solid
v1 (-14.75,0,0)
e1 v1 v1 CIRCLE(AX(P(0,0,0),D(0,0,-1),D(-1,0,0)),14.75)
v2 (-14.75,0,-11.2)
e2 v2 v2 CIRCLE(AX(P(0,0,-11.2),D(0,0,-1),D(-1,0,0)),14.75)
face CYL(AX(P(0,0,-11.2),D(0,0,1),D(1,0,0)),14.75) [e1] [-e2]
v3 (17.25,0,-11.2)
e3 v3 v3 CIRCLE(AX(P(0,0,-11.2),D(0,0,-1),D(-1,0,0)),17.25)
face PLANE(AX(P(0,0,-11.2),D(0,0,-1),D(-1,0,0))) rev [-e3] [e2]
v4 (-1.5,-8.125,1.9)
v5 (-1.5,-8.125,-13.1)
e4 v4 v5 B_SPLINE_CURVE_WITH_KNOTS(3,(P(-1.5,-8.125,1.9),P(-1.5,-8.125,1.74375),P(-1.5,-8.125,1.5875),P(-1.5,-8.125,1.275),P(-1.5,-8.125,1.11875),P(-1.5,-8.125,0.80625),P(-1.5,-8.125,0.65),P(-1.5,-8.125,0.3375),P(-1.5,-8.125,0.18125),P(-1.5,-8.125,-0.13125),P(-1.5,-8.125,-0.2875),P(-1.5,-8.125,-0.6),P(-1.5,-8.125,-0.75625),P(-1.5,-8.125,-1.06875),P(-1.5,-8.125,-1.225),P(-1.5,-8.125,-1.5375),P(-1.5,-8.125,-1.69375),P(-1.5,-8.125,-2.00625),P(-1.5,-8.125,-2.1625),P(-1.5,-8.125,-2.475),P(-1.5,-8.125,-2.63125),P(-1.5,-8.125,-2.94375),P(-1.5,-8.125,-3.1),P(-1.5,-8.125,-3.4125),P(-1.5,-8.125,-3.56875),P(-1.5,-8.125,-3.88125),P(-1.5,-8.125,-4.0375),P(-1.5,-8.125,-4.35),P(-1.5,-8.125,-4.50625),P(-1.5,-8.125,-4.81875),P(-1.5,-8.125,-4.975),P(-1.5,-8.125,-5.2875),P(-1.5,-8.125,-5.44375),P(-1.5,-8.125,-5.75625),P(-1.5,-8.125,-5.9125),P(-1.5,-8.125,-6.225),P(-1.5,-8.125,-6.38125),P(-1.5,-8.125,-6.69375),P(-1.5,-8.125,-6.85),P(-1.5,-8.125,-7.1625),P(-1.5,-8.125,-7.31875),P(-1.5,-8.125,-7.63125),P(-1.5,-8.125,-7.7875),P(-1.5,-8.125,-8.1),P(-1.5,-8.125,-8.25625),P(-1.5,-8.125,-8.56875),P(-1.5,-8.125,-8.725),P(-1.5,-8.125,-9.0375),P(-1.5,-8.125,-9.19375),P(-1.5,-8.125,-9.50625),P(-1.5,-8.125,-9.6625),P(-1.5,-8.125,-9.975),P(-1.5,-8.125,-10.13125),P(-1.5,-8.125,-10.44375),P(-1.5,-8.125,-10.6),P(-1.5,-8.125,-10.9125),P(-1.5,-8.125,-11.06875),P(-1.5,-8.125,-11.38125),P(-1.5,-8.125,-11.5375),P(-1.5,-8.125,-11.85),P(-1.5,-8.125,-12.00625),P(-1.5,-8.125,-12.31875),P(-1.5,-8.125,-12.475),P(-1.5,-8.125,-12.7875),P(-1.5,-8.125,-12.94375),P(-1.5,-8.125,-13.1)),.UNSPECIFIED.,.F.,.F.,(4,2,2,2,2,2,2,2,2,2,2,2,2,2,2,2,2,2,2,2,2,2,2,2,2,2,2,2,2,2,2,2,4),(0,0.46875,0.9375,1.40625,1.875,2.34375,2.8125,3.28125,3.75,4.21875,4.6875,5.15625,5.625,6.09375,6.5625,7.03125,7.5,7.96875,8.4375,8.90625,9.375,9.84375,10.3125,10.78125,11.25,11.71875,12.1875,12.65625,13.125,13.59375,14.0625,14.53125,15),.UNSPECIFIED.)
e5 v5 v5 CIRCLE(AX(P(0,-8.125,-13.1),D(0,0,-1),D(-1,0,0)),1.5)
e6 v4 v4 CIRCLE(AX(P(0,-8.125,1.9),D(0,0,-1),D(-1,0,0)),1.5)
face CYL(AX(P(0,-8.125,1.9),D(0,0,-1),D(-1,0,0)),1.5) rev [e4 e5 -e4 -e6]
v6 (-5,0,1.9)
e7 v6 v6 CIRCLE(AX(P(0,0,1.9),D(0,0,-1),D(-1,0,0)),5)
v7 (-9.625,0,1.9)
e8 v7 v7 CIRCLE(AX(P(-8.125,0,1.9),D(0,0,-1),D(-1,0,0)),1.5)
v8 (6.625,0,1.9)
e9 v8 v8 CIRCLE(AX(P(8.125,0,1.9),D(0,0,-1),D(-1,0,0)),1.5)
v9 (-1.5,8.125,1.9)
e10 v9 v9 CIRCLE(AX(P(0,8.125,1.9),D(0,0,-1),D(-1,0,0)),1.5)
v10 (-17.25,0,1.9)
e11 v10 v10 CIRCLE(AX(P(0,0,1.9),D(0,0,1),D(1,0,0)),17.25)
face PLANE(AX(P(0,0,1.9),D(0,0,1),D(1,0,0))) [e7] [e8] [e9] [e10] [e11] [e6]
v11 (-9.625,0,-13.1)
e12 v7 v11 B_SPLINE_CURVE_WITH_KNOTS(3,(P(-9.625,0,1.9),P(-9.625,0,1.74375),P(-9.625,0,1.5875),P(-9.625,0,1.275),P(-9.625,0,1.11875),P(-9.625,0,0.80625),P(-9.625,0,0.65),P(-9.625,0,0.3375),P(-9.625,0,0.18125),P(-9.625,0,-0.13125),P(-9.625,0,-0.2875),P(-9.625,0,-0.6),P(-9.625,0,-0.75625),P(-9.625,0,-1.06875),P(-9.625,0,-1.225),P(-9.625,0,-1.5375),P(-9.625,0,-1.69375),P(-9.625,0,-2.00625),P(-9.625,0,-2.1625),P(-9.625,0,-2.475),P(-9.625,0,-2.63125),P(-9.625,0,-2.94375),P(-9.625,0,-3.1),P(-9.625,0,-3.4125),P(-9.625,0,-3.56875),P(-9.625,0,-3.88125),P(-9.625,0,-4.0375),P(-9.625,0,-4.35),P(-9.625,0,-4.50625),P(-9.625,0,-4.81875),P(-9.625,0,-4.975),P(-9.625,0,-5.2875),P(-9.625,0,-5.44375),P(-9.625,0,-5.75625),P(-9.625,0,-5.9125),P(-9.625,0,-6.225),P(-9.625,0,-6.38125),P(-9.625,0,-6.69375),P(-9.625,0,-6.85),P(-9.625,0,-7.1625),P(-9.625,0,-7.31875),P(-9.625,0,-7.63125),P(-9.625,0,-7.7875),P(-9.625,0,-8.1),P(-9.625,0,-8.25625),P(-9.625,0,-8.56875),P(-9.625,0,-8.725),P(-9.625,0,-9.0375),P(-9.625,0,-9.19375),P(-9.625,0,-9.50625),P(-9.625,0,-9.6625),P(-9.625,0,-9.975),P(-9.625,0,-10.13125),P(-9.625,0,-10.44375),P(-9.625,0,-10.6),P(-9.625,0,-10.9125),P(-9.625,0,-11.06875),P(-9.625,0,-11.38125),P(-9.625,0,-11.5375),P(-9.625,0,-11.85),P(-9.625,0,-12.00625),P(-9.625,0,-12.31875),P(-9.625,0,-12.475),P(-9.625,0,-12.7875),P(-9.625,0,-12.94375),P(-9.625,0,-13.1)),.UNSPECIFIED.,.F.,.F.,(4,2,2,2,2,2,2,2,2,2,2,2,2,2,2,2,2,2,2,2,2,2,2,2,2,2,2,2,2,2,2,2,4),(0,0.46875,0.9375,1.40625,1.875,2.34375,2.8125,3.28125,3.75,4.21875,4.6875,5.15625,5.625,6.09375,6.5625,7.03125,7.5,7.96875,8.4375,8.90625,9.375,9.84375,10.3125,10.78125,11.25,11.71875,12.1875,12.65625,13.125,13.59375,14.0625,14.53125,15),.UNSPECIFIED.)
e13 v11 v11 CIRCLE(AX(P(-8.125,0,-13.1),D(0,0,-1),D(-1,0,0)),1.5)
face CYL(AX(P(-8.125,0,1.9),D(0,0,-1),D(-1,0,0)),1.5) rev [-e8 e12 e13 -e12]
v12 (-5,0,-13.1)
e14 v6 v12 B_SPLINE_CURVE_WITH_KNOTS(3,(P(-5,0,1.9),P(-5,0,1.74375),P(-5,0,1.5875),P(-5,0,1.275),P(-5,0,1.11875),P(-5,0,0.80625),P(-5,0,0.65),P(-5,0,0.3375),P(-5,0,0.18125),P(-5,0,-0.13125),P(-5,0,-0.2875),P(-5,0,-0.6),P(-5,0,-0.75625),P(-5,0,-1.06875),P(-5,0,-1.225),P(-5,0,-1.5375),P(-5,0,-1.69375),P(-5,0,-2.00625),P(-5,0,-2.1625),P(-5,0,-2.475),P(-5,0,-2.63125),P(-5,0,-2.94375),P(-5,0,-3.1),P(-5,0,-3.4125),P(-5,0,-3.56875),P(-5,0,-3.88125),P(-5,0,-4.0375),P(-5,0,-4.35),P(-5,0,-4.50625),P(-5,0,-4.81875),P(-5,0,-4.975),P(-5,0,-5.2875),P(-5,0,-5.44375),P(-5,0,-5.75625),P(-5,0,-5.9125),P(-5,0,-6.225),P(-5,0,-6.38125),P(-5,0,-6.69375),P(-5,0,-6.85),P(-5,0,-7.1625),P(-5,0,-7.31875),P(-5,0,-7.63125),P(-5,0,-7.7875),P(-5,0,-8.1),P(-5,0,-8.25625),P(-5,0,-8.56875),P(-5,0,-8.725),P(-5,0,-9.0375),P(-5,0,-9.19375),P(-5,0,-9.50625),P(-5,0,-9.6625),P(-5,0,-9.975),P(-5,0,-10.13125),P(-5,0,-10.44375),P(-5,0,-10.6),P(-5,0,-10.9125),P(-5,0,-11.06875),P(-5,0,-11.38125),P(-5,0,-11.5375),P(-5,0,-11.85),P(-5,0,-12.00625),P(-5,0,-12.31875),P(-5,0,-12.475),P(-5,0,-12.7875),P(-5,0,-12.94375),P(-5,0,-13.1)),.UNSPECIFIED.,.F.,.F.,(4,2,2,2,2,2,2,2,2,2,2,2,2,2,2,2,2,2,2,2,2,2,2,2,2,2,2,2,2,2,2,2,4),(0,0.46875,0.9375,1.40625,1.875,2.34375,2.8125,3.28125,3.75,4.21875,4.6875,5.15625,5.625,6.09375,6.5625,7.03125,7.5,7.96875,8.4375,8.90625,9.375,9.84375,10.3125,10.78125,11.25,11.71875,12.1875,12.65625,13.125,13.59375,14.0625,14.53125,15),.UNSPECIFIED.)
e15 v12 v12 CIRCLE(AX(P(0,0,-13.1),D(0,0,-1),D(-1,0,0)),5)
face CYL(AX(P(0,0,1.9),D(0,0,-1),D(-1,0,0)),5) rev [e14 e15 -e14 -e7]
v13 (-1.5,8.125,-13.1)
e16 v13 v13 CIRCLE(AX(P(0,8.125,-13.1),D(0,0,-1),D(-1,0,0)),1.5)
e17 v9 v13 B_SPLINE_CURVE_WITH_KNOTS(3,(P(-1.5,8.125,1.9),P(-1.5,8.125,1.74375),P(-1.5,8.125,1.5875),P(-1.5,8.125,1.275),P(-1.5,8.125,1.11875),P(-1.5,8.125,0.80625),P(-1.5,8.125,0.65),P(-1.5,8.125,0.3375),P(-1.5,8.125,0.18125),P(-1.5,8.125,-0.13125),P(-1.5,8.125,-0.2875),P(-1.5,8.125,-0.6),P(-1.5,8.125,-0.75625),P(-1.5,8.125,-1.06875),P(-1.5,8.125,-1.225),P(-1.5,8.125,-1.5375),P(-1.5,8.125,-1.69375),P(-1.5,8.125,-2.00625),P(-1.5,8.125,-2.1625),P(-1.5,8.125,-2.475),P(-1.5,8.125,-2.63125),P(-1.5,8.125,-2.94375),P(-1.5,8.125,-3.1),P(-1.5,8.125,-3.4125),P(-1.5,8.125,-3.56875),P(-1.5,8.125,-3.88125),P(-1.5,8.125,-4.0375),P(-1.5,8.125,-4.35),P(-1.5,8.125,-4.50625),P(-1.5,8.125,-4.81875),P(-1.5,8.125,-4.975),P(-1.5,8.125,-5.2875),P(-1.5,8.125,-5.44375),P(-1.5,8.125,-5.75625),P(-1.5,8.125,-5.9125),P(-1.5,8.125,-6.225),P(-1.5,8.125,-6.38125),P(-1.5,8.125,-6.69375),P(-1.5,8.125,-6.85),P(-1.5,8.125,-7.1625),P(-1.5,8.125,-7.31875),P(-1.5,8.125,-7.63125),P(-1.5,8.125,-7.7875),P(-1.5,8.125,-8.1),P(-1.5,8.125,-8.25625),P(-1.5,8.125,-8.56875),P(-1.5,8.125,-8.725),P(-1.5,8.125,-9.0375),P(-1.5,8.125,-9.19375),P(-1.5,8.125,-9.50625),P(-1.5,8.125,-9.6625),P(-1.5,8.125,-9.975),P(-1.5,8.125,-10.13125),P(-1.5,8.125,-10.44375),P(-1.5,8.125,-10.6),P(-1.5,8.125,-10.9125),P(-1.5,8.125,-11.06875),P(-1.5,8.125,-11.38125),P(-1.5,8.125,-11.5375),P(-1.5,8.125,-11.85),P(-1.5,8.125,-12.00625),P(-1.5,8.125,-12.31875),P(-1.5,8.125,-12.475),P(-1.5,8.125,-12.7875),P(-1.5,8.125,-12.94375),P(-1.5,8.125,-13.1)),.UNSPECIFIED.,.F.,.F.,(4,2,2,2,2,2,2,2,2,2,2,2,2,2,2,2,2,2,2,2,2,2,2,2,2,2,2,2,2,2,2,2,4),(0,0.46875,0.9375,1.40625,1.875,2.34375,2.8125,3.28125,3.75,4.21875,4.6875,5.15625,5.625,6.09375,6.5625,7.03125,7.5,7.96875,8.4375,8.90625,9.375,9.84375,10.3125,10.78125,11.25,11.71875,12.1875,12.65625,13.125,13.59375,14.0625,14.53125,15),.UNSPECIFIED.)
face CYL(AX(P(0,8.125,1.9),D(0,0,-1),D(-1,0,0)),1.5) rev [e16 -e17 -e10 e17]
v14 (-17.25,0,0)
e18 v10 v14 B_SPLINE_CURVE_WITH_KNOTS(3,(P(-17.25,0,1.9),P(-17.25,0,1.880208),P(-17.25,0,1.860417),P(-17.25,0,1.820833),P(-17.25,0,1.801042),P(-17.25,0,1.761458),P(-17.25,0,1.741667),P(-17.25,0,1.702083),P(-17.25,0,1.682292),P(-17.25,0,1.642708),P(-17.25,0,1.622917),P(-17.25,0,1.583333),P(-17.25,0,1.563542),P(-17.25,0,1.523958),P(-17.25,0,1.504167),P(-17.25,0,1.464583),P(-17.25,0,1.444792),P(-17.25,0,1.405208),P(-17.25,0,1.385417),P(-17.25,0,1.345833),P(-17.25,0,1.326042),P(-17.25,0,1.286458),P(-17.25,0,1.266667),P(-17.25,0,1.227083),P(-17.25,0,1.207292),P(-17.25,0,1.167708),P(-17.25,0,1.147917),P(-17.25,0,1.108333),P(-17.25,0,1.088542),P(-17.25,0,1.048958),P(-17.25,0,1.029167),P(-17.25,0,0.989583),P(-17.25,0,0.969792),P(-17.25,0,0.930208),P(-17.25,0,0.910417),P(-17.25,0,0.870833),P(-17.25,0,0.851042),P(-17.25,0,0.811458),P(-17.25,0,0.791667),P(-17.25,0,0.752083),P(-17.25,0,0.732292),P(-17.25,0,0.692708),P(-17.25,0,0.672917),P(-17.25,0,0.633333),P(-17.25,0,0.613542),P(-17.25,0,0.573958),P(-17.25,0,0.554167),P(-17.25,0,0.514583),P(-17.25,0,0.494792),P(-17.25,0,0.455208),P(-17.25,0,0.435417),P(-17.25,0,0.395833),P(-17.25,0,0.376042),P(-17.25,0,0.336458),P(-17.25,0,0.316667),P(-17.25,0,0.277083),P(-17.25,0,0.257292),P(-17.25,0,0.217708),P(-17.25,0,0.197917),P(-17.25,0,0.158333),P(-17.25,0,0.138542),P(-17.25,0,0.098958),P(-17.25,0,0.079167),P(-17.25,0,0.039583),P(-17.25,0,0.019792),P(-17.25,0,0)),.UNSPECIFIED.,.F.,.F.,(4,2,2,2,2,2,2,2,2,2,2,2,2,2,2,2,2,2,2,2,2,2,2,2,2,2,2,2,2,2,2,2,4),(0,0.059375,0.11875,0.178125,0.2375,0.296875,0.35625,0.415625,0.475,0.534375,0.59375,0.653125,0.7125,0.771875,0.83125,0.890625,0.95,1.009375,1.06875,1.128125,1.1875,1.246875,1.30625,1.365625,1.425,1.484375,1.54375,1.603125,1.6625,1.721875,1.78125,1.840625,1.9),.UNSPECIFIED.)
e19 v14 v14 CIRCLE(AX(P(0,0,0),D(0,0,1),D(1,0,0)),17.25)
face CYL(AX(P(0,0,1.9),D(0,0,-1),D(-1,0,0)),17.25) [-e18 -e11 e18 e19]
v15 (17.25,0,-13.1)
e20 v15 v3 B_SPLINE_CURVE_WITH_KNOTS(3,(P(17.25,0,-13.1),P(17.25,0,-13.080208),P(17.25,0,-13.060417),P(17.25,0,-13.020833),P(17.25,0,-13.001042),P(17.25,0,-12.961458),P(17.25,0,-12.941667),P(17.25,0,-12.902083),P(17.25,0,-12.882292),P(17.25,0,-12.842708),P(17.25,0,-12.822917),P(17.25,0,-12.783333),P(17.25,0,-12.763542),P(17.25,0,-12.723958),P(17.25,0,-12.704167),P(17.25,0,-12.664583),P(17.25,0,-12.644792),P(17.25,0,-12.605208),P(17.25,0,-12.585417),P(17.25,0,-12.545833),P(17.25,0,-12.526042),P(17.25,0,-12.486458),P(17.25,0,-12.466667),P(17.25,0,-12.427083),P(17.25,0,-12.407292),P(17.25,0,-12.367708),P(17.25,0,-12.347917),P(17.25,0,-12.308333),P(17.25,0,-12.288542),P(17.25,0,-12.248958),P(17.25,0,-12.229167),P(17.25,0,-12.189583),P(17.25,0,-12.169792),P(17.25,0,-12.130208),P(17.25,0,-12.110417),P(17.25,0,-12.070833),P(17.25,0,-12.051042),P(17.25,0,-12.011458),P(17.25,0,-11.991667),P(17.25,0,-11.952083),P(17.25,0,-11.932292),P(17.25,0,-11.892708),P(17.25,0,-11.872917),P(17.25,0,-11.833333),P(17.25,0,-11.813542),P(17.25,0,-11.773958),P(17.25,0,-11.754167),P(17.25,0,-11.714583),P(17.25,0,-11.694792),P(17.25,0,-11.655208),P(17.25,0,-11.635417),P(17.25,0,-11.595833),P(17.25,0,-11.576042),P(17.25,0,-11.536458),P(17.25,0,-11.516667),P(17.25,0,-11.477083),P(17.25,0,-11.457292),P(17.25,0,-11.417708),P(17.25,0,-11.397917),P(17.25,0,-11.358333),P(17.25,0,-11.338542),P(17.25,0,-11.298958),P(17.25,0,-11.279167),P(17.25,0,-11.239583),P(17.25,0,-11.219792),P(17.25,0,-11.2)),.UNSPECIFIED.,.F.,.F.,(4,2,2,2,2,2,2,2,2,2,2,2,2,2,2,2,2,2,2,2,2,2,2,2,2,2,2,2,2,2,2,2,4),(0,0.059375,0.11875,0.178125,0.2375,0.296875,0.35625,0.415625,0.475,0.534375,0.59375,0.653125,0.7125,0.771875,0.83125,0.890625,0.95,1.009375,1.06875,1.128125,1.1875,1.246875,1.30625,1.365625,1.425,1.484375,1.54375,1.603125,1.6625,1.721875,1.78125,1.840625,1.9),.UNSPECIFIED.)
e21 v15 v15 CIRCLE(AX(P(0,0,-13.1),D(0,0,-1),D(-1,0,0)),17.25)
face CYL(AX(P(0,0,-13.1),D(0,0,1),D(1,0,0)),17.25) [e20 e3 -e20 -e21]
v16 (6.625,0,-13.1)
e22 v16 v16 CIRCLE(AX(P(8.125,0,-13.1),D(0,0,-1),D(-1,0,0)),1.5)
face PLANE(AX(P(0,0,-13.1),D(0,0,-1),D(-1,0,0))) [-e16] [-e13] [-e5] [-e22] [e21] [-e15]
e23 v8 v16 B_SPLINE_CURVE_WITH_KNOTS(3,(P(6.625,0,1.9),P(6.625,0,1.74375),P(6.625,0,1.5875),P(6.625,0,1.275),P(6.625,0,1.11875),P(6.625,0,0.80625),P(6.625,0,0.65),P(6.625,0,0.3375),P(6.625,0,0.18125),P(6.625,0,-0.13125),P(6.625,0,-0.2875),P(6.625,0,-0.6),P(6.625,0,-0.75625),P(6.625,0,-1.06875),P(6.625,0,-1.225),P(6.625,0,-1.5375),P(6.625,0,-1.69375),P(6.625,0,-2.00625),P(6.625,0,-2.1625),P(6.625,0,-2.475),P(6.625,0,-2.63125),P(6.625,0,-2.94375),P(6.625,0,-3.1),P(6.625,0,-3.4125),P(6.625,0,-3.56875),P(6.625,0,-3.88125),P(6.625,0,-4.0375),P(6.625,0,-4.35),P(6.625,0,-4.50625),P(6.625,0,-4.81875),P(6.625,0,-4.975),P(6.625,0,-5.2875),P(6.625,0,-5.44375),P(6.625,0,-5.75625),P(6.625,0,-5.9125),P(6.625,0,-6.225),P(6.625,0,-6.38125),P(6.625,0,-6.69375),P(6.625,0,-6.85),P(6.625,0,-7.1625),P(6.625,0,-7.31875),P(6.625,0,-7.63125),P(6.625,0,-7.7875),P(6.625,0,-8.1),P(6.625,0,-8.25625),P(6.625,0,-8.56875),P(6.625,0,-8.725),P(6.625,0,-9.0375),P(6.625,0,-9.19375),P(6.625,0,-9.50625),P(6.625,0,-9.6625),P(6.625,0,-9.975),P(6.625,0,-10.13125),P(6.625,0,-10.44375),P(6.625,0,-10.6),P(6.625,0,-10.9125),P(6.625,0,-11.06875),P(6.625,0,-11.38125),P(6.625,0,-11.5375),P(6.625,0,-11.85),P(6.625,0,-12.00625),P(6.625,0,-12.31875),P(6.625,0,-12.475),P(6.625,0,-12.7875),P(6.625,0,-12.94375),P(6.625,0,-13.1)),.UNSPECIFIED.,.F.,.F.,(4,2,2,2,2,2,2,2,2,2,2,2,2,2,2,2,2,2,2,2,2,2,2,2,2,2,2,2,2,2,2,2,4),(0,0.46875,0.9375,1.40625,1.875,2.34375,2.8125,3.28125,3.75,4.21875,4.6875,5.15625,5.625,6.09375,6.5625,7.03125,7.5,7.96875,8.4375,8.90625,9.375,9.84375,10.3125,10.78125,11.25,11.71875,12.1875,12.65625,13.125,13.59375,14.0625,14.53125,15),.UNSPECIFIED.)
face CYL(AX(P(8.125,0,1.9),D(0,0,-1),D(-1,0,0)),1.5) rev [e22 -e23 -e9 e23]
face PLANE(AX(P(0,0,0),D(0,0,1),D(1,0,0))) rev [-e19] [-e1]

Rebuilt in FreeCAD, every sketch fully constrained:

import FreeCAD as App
import Part
import Sketcher

V = App.Vector

doc = App.newDocument("Part")
body = doc.addObject("PartDesign::Body", "Body")

sketch1 = body.newObject("Sketcher::SketchObject", "Sketch")
sketch1.AttachmentSupport = (doc.getObject("XY_Plane"), [""])
sketch1.MapMode = "FlatFace"
sketch1.addGeometry(Part.Circle(V(0, 0, 0), V(0, 0, 1), 17), False)
sketch1.addConstraint(Sketcher.Constraint("Coincident", 0, 3, -1, 1))
sketch1.addConstraint(Sketcher.Constraint("Diameter", 0, 34.5))
pad1 = body.newObject("PartDesign::Pad", "Pad")
pad1.Profile = sketch1
pad1.Length = 1.9

sketch2 = body.newObject("Sketcher::SketchObject", "Sketch001")
sketch2.AttachmentSupport = (doc.getObject("XY_Plane"), [""])
sketch2.MapMode = "FlatFace"
sketch2.addGeometry(Part.Circle(V(0, 0, 0), V(0, 0, 1), 15), False)
sketch2.addConstraint(Sketcher.Constraint("Coincident", 0, 3, -1, 1))
sketch2.addConstraint(Sketcher.Constraint("Diameter", 0, 29.5))
pad2 = body.newObject("PartDesign::Pad", "Pad001")
pad2.Profile = sketch2
pad2.Length = 11.2
pad2.Reversed = True

sketch3 = body.newObject("Sketcher::SketchObject", "Sketch002")
sketch3.AttachmentSupport = (doc.getObject("XY_Plane"), [""])
sketch3.MapMode = "FlatFace"
sketch3.AttachmentOffset = App.Placement(V(0, 0, -13.1), App.Rotation())
sketch3.addGeometry(Part.Circle(V(0, 0, 0), V(0, 0, 1), 17), False)
sketch3.addConstraint(Sketcher.Constraint("Coincident", 0, 3, -1, 1))
sketch3.addConstraint(Sketcher.Constraint("Diameter", 0, 34.5))
pad3 = body.newObject("PartDesign::Pad", "Pad002")
pad3.Profile = sketch3
pad3.Length = 1.9

sketch4 = body.newObject("Sketcher::SketchObject", "Sketch003")
sketch4.AttachmentSupport = (doc.getObject("XY_Plane"), [""])
sketch4.MapMode = "FlatFace"
sketch4.AttachmentOffset = App.Placement(V(0, 0, -13.1), App.Rotation())
sketch4.addGeometry(Part.Circle(V(0, 0, 0), V(0, 0, 1), 5), False)
sketch4.addConstraint(Sketcher.Constraint("Coincident", 0, 3, -1, 1))
sketch4.addConstraint(Sketcher.Constraint("Diameter", 0, 10.0))
pocket1 = body.newObject("PartDesign::Pocket", "Pocket")
pocket1.Profile = sketch4
pocket1.Type = "ThroughAll"
pocket1.Reversed = True

sketch5 = body.newObject("Sketcher::SketchObject", "Sketch004")
sketch5.AttachmentSupport = (doc.getObject("XY_Plane"), [""])
sketch5.MapMode = "FlatFace"
sketch5.AttachmentOffset = App.Placement(V(0, 0, -13.1), App.Rotation())
sketch5.addGeometry(Part.Circle(V(0, 8.1, 0), V(0, 0, 1), 1.5), False)
sketch5.addGeometry(Part.Circle(V(-8.1, 0, 0), V(0, 0, 1), 1.5), False)
sketch5.addGeometry(Part.Circle(V(0, -8.1, 0), V(0, 0, 1), 1.5), False)
sketch5.addGeometry(Part.Circle(V(8.1, 0, 0), V(0, 0, 1), 1.5), False)
sketch5.addConstraint(Sketcher.Constraint("Equal", 0, 1))
sketch5.addConstraint(Sketcher.Constraint("Equal", 1, 2))
sketch5.addConstraint(Sketcher.Constraint("Equal", 2, 3))
sketch5.addConstraint(Sketcher.Constraint("Symmetric", 0, 3, 2, 3, -1, 1))
sketch5.addConstraint(Sketcher.Constraint("Symmetric", 1, 3, 3, 3, -1, 1))
sketch5.addConstraint(Sketcher.Constraint("PointOnObject", 0, 3, -2))
sketch5.addConstraint(Sketcher.Constraint("PointOnObject", 1, 3, -1))
sketch5.addConstraint(Sketcher.Constraint("Diameter", 0, 3.0))
sketch5.addConstraint(Sketcher.Constraint("DistanceY", 2, 3, 0, 3, 16.25))
sketch5.addConstraint(Sketcher.Constraint("DistanceX", 1, 3, 3, 3, 16.25))
pocket2 = body.newObject("PartDesign::Pocket", "Pocket001")
pocket2.Profile = sketch5
pocket2.Type = "ThroughAll"
pocket2.Reversed = True

doc.recompute()
